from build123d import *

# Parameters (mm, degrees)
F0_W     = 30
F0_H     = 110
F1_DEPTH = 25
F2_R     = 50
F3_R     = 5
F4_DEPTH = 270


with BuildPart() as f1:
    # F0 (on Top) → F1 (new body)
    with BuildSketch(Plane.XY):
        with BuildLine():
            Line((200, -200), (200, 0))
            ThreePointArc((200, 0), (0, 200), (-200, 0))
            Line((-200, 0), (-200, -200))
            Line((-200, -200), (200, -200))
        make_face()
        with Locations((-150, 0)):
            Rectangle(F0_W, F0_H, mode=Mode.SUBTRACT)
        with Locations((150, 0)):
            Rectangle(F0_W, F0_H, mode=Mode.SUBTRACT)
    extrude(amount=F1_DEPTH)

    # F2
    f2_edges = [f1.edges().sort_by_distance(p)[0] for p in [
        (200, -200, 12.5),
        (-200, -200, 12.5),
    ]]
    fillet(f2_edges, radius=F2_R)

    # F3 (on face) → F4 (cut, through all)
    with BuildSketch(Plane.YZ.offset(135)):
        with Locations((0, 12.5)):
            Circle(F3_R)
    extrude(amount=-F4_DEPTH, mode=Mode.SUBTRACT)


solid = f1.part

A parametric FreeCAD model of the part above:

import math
import FreeCAD as App
import Part
import Sketcher

V = App.Vector
Q = App.Units.Quantity


def edges_at(feature, points):
    """Names of the edges that pass closest to the given points."""
    edges = feature.Shape.Edges
    near = lambda p: min(range(len(edges)), key=lambda i: edges[i].distToShape(Part.Vertex(*p))[0])
    return sorted({f"Edge{near(p) + 1}" for p in points})

doc = App.newDocument("Part")
body = doc.addObject("PartDesign::Body", "Body")

# Sketch on XY plane
sketch1 = body.newObject("Sketcher::SketchObject", "Sketch")
sketch1.AttachmentSupport = (doc.getObject("XY_Plane"), [""])
sketch1.MapMode = "FlatFace"
sketch1.addGeometry([
    Part.LineSegment(V(200, -200, 0), V(200, 0, 0)),  # 0
    Part.ArcOfCircle(Part.Circle(V(0, 0, 0), V(0, 0, 1), 200), math.radians(0), math.radians(180)),  # 1
    Part.LineSegment(V(-200, 0, 0), V(-200, -200, 0)),  # 2
    Part.LineSegment(V(-200, -200, 0), V(200, -200, 0)),  # 3
    Part.LineSegment(V(-135, -55, 0), V(-165, -55, 0)),  # 4
    Part.LineSegment(V(-165, -55, 0), V(-165, 55, 0)),  # 5
    Part.LineSegment(V(-165, 55, 0), V(-135, 55, 0)),  # 6
    Part.LineSegment(V(-135, 55, 0), V(-135, -55, 0)),  # 7
    Part.LineSegment(V(165, -55, 0), V(135, -55, 0)),  # 8
    Part.LineSegment(V(135, -55, 0), V(135, 55, 0)),  # 9
    Part.LineSegment(V(135, 55, 0), V(165, 55, 0)),  # 10
    Part.LineSegment(V(165, 55, 0), V(165, -55, 0)),  # 11
], False)
sketch1.addConstraint([
    Sketcher.Constraint("Tangent", 0, 2, 1, 1),
    Sketcher.Constraint("Tangent", 1, 2, 2, 1),
    Sketcher.Constraint("Coincident", 2, 2, 3, 1),
    Sketcher.Constraint("Coincident", 3, 2, 0, 1),
    Sketcher.Constraint("Coincident", 4, 2, 5, 1),
    Sketcher.Constraint("Coincident", 5, 2, 6, 1),
    Sketcher.Constraint("Coincident", 6, 2, 7, 1),
    Sketcher.Constraint("Coincident", 7, 2, 4, 1),
    Sketcher.Constraint("Coincident", 8, 2, 9, 1),
    Sketcher.Constraint("Coincident", 9, 2, 10, 1),
    Sketcher.Constraint("Coincident", 10, 2, 11, 1),
    Sketcher.Constraint("Coincident", 11, 2, 8, 1),
    Sketcher.Constraint("Vertical", 0),
    Sketcher.Constraint("Vertical", 2),
    Sketcher.Constraint("Horizontal", 3),
    Sketcher.Constraint("Horizontal", 4),
    Sketcher.Constraint("Vertical", 5),
    Sketcher.Constraint("Horizontal", 6),
    Sketcher.Constraint("Vertical", 7),
    Sketcher.Constraint("Horizontal", 8),
    Sketcher.Constraint("Vertical", 9),
    Sketcher.Constraint("Horizontal", 10),
    Sketcher.Constraint("Vertical", 11),
    Sketcher.Constraint("Coincident", 1, 3, -1, 1),
    Sketcher.Constraint("Symmetric", 6, 2, 8, 2, -1, 1),
    Sketcher.Constraint("Symmetric", 4, 2, 10, 2, -1, 1),
    Sketcher.Constraint("Horizontal", 7, 2, 8, 2),
    Sketcher.Constraint("Radius", 1, Q("200 mm")),
    Sketcher.Constraint("DistanceX", 4, 2, 4, 1, Q("30 mm")),
    Sketcher.Constraint("DistanceY", 0, 1, 0, 2, Q("200 mm")),
    Sketcher.Constraint("DistanceY", 5, 1, 5, 2, Q("110 mm")),
    Sketcher.Constraint("DistanceX", 4, 2, -1, 1, Q("165 mm")),
])
pad1 = body.newObject("PartDesign::Pad", "Pad")
pad1.Profile = sketch1
pad1.Length = 25
doc.recompute()

fillet = body.newObject("PartDesign::Fillet", "Fillet")
fillet.Base = (pad1, edges_at(pad1, [(200, -200, 12.5), (-200, -200, 12.5)]))
fillet.Radius = 50

# Sketch on YZ plane
sketch2 = body.newObject("Sketcher::SketchObject", "Sketch001")
sketch2.AttachmentSupport = (doc.getObject("YZ_Plane"), [""])
sketch2.MapMode = "FlatFace"
sketch2.AttachmentOffset = App.Placement(V(0, 0, 135), App.Rotation())
sketch2.addGeometry(Part.Circle(V(0, 12, 0), V(0, 0, 1), 5), False)
sketch2.addConstraint([
    Sketcher.Constraint("PointOnObject", 0, 3, -2),
    Sketcher.Constraint("Diameter", 0, Q("10 mm")),
    Sketcher.Constraint("DistanceY", -1, 1, 0, 3, Q("12.5 mm")),
])
pocket1 = body.newObject("PartDesign::Pocket", "Pocket")
pocket1.Profile = sketch2
pocket1.Length = 270

doc.recompute()
